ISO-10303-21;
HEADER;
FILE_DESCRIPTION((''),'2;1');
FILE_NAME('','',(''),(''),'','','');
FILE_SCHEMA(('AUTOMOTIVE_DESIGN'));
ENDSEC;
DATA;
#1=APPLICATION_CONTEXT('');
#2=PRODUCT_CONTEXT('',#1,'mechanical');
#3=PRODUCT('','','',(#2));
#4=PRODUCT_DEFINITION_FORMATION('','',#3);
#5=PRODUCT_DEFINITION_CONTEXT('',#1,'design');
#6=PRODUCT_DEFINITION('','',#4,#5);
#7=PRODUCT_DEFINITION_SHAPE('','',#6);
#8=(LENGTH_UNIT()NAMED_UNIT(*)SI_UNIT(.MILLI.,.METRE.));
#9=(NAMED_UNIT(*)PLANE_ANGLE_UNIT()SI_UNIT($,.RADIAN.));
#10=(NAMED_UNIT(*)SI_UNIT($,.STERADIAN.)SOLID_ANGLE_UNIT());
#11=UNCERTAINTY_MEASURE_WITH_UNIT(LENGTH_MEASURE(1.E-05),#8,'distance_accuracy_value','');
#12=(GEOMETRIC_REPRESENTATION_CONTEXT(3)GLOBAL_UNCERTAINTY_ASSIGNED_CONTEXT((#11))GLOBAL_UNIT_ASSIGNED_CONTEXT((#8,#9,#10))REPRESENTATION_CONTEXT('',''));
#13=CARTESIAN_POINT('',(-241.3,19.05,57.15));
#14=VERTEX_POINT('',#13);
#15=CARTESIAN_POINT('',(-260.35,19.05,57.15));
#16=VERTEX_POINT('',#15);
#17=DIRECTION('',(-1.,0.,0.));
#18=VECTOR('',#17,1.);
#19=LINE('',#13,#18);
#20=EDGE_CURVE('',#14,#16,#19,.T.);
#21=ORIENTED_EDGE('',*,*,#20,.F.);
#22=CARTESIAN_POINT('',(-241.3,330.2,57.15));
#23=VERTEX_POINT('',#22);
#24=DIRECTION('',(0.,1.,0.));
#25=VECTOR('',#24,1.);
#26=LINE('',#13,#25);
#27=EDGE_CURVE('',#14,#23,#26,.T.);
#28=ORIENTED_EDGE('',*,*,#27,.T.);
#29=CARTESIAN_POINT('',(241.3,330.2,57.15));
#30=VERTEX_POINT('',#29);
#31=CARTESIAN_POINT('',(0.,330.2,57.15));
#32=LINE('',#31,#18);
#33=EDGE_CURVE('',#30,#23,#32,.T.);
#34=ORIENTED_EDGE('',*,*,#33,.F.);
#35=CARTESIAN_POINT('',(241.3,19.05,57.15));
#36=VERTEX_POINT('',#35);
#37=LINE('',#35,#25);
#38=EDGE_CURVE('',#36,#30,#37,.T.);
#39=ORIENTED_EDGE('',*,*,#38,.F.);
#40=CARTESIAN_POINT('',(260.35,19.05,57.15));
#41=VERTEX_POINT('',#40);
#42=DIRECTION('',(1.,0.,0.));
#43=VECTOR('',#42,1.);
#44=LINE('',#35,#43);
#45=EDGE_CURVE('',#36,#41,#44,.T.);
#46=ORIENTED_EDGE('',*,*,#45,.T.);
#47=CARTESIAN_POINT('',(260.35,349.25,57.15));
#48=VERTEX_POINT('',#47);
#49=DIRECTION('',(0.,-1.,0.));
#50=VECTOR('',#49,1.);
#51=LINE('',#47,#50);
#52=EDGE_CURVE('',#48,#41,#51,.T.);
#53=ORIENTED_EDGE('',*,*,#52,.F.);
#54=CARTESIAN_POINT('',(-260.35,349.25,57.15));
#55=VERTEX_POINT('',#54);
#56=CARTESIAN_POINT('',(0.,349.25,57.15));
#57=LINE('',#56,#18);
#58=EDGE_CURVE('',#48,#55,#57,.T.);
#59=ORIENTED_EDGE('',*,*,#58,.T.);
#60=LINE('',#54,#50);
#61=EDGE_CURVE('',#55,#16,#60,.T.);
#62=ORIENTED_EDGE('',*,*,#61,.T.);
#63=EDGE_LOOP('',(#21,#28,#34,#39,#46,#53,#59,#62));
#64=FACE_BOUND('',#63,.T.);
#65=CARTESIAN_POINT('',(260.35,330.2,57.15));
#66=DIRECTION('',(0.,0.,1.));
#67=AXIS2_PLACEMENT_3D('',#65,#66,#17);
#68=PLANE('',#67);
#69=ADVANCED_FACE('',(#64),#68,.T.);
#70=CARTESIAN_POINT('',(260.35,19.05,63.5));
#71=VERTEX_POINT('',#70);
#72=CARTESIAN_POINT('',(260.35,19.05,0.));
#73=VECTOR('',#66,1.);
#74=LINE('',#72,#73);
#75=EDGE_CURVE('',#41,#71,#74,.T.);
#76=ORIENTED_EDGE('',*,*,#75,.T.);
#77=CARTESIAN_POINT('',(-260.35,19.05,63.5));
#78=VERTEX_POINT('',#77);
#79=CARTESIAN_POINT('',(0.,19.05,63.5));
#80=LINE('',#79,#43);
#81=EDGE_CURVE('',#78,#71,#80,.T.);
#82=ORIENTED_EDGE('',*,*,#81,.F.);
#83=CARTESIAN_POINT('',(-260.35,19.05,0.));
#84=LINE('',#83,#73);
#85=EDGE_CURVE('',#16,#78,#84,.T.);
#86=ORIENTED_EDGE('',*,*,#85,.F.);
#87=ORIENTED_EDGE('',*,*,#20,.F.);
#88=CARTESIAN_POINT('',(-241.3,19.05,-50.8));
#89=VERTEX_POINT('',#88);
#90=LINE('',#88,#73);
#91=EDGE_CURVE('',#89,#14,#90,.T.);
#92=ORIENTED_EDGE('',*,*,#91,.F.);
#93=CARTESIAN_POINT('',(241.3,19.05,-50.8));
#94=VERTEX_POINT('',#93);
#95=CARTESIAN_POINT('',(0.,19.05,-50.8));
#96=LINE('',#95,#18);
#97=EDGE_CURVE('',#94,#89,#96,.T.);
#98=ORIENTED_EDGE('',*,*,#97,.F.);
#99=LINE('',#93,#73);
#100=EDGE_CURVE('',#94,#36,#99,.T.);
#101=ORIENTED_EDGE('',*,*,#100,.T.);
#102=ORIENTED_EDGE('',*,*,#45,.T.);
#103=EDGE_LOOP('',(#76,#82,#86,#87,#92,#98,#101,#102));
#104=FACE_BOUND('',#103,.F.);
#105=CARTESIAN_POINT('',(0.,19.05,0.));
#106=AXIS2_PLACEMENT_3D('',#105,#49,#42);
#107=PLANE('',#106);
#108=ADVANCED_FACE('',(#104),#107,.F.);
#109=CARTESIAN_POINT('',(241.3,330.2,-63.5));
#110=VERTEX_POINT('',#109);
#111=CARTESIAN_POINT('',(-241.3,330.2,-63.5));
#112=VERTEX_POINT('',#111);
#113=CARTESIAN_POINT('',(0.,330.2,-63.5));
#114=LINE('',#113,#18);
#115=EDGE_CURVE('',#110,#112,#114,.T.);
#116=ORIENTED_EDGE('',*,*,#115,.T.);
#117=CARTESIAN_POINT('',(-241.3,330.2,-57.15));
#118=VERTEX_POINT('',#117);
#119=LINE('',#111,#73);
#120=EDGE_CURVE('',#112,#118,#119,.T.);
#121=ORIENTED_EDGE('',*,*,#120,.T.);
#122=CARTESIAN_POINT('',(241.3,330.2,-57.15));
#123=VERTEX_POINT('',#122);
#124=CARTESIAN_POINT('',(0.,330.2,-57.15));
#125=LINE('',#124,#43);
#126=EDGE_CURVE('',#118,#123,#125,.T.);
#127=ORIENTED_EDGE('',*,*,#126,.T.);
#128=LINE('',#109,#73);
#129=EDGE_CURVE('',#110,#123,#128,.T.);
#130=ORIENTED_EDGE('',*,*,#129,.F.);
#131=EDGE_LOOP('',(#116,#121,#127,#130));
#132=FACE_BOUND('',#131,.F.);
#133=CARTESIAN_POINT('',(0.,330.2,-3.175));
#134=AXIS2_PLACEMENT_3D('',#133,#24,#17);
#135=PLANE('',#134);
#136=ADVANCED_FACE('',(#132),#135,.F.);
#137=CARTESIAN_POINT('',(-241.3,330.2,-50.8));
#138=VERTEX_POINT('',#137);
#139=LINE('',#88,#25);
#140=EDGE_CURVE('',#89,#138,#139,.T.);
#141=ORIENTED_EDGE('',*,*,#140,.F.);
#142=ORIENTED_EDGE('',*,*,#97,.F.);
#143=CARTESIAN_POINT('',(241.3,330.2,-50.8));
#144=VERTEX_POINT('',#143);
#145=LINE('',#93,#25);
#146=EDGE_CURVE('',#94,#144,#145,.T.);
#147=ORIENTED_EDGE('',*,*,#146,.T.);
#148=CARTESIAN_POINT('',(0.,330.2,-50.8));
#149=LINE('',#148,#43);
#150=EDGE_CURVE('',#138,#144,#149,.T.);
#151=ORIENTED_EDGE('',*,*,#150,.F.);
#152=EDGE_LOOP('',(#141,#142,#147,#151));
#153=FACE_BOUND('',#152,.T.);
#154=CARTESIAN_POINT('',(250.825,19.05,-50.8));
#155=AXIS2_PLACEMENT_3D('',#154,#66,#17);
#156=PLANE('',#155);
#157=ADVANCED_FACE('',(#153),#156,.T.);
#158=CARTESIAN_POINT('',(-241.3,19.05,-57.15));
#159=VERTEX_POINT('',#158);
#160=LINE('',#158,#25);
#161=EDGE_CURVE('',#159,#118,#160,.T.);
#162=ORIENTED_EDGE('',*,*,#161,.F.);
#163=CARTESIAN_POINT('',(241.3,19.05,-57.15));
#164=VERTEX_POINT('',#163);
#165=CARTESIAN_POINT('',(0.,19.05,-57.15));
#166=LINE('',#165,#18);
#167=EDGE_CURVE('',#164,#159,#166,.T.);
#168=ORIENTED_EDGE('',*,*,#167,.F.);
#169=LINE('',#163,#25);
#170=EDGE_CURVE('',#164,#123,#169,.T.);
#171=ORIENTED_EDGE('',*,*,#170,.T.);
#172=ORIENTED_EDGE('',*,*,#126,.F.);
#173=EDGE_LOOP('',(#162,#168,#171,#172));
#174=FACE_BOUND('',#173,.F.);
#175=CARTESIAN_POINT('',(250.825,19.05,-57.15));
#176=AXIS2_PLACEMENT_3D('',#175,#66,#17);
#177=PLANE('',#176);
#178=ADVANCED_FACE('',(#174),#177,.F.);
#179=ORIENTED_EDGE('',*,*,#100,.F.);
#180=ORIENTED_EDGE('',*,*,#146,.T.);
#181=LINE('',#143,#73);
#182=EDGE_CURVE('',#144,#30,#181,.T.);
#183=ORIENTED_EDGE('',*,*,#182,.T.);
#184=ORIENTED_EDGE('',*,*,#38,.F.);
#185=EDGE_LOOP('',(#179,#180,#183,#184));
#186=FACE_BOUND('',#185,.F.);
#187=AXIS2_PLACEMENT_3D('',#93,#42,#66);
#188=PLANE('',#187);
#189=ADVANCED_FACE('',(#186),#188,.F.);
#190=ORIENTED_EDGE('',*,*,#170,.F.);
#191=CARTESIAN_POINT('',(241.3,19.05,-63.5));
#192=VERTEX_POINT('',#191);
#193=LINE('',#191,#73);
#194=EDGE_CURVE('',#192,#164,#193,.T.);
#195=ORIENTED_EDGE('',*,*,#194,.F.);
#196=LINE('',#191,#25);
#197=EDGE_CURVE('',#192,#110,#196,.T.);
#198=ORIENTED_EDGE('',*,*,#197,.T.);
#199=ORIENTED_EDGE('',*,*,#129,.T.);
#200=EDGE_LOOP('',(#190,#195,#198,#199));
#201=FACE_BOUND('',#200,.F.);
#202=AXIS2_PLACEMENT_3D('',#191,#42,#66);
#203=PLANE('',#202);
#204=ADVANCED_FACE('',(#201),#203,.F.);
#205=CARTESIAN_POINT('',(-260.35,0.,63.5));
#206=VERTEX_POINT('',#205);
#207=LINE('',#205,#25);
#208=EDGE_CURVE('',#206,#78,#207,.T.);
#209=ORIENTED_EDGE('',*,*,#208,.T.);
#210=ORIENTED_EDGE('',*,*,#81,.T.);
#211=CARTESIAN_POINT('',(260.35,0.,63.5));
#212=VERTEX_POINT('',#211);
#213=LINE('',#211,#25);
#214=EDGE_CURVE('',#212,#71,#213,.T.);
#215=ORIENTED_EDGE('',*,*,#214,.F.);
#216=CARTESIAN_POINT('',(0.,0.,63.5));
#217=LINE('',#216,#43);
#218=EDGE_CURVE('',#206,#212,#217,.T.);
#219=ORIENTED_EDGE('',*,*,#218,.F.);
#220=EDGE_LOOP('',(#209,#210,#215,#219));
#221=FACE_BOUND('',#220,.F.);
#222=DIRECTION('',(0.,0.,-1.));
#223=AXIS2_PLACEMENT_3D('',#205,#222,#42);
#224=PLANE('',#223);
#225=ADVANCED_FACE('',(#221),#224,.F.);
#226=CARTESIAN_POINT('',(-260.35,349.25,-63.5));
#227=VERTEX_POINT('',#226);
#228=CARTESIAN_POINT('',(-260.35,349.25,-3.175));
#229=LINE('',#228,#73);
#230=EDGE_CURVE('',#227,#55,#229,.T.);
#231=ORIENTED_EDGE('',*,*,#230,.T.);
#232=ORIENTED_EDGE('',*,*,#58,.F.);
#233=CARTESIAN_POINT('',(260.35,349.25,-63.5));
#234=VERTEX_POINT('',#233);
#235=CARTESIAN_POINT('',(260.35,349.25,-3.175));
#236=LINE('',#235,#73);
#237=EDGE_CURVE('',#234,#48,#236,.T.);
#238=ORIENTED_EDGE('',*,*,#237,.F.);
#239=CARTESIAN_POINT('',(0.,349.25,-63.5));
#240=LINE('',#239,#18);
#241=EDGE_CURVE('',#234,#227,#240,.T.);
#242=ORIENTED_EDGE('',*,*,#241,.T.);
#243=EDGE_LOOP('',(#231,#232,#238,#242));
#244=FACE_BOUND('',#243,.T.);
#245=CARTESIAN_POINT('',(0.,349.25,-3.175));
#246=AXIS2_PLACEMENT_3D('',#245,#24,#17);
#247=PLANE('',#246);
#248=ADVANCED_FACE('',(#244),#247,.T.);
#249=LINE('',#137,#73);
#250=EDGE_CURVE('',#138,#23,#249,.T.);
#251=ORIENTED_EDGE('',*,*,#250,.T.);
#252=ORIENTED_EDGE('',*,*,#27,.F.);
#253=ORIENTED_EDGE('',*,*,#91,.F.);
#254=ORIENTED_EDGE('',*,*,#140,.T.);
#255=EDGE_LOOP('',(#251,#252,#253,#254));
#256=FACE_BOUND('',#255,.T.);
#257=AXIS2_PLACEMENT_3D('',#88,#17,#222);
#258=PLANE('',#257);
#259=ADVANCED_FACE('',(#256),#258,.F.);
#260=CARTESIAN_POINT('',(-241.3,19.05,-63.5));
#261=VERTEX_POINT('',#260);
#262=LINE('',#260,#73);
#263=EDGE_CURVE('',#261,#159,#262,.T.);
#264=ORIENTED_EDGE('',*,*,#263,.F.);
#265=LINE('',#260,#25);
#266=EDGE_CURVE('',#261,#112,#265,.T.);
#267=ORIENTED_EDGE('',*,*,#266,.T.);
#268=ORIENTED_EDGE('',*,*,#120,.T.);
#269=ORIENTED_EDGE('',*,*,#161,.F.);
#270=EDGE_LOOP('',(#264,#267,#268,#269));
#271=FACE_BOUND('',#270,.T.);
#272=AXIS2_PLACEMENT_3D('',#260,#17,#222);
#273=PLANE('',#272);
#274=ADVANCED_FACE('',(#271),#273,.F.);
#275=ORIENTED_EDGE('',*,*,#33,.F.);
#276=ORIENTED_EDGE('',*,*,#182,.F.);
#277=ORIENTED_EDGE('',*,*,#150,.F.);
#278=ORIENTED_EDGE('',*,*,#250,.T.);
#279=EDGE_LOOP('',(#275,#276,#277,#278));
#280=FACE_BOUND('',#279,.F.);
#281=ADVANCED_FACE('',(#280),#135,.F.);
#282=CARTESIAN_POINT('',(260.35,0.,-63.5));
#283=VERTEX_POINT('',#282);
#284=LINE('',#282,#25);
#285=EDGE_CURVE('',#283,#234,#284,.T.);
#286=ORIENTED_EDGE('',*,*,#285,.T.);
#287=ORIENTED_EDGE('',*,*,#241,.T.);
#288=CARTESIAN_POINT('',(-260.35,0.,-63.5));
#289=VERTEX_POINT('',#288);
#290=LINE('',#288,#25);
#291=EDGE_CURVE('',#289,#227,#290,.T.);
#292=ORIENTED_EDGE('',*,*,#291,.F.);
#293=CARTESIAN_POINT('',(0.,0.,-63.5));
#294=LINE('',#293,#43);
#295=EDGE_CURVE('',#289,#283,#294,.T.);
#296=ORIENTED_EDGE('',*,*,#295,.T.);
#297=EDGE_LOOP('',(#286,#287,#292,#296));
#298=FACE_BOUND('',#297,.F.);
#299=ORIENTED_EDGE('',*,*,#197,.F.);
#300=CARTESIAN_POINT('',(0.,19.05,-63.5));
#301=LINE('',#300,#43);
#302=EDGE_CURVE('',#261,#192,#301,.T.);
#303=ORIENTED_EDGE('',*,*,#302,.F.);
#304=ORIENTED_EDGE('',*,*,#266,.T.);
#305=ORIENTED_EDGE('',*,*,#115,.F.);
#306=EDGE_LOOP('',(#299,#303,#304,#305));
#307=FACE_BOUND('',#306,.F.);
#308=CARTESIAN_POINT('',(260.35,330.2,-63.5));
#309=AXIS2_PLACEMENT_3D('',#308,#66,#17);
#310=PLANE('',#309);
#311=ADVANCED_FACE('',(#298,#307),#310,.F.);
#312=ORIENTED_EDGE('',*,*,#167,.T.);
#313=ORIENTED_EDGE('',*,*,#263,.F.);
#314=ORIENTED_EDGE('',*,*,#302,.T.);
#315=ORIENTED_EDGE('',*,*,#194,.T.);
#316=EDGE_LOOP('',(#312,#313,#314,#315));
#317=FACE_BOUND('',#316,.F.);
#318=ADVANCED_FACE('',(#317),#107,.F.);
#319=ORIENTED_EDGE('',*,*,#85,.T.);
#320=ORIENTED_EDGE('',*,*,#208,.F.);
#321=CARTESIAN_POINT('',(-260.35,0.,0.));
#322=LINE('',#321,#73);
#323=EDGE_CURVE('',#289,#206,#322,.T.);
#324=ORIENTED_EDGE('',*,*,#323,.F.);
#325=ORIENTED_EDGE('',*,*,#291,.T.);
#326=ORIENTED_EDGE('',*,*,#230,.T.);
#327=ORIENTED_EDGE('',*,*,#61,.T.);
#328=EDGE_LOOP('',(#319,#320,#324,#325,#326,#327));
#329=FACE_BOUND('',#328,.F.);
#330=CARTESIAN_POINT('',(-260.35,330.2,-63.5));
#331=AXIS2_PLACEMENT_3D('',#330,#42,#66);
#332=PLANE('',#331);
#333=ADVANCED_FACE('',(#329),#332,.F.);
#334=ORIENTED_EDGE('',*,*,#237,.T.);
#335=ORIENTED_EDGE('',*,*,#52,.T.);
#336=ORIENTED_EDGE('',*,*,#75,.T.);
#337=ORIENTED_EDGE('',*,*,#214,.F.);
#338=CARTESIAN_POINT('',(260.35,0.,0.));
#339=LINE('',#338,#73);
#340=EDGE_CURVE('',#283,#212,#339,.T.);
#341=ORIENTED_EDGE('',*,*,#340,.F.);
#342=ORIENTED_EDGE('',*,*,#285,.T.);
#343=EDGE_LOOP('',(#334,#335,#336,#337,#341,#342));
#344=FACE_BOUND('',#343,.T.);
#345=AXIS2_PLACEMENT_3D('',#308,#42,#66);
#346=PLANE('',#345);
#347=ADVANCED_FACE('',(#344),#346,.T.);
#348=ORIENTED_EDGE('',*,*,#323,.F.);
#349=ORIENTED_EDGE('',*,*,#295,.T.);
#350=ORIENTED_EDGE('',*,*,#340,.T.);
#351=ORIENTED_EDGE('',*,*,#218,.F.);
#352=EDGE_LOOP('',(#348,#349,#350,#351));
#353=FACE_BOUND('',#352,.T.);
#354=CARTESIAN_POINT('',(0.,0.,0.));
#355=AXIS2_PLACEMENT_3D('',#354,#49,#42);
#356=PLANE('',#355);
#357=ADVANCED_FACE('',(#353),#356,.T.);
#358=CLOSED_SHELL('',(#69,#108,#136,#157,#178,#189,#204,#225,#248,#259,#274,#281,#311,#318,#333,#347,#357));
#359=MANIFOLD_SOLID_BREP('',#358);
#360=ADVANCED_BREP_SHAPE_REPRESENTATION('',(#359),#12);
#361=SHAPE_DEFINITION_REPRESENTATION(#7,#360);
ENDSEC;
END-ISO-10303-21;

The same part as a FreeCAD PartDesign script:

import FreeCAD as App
import Part
import Sketcher

V = App.Vector
Q = App.Units.Quantity

doc = App.newDocument("Part")
body = doc.addObject("PartDesign::Body", "Body")

# Sketch on XZ plane
sketch1 = doc.addObject("Sketcher::SketchObject", "Sketch")
body.addObject(sketch1)
sketch1.AttachmentSupport = (doc.XZ_Plane, [""])
sketch1.MapMode = "FlatFace"
sketch1.addGeometry([
    Part.LineSegment(V(-260, 64, 0), V(-260, -64, 0)),
    Part.LineSegment(V(-260, -64, 0), V(260, -64, 0)),
    Part.LineSegment(V(260, -64, 0), V(260, 64, 0)),
    Part.LineSegment(V(260, 64, 0), V(-260, 64, 0)),
], False)
sketch1.addConstraint([
    Sketcher.Constraint("Coincident", 0, 2, 1, 1),
    Sketcher.Constraint("Coincident", 1, 2, 2, 1),
    Sketcher.Constraint("Coincident", 2, 2, 3, 1),
    Sketcher.Constraint("Coincident", 3, 2, 0, 1),
    Sketcher.Constraint("Vertical", 0),
    Sketcher.Constraint("Horizontal", 1),
    Sketcher.Constraint("Vertical", 2),
    Sketcher.Constraint("Horizontal", 3),
    Sketcher.Constraint("Symmetric", 0, 2, 2, 2, -1, 1),
    Sketcher.Constraint("DistanceY", 0, 2, 0, 1, Q("5 in")),
    Sketcher.Constraint("DistanceX", 1, 1, 1, 2, Q("20.5 in")),
])
pad1 = doc.addObject("PartDesign::Pad", "Pad")
body.addObject(pad1)
pad1.Profile = sketch1
pad1.Length = Q("0.75 in")
pad1.Reversed = True

# Sketch on XZ plane
sketch2 = doc.addObject("Sketcher::SketchObject", "Sketch001")
body.addObject(sketch2)
sketch2.AttachmentSupport = (doc.XZ_Plane, [""])
sketch2.MapMode = "FlatFace"
sketch2.AttachmentOffset = App.Placement(V(0, 0, -0.75 * 25.4), App.Rotation())
sketch2.addGeometry([
    Part.LineSegment(V(260, 57, 0), V(260, -64, 0)),  # 0
    Part.LineSegment(V(260, -64, 0), V(241, -64, 0)),  # 1
    Part.LineSegment(V(241, -64, 0), V(241, -57, 0)),  # 2
    Part.LineSegment(V(241, -57, 0), V(251, -57, 0)),  # 3
    Part.LineSegment(V(251, -57, 0), V(251, -51, 0)),  # 4
    Part.LineSegment(V(251, -51, 0), V(241, -51, 0)),  # 5
    Part.LineSegment(V(241, -51, 0), V(241, 57, 0)),  # 6
    Part.LineSegment(V(241, 57, 0), V(260, 57, 0)),  # 7
], False)
sketch2.addConstraint([
    Sketcher.Constraint("Coincident", 0, 2, 1, 1),
    Sketcher.Constraint("Coincident", 1, 2, 2, 1),
    Sketcher.Constraint("Coincident", 2, 2, 3, 1),
    Sketcher.Constraint("Coincident", 3, 2, 4, 1),
    Sketcher.Constraint("Coincident", 4, 2, 5, 1),
    Sketcher.Constraint("Coincident", 5, 2, 6, 1),
    Sketcher.Constraint("Coincident", 6, 2, 7, 1),
    Sketcher.Constraint("Coincident", 7, 2, 0, 1),
    Sketcher.Constraint("Vertical", 0),
    Sketcher.Constraint("Horizontal", 1),
    Sketcher.Constraint("Vertical", 2),
    Sketcher.Constraint("Horizontal", 3),
    Sketcher.Constraint("Vertical", 4),
    Sketcher.Constraint("Horizontal", 5),
    Sketcher.Constraint("Vertical", 6),
    Sketcher.Constraint("Horizontal", 7),
    Sketcher.Constraint("Symmetric", 2, 2, 6, 2, -1),
    Sketcher.Constraint("Equal", 2, 4),
    Sketcher.Constraint("DistanceY", 4, 2, -1, 1, Q("2 in")),
    Sketcher.Constraint("DistanceX", 1, 2, 1, 1, Q("0.75 in")),
    Sketcher.Constraint("DistanceY", 0, 2, 0, 1, Q("4.75 in")),
    Sketcher.Constraint("DistanceX", -1, 1, 1, 2, Q("9.5 in")),
    Sketcher.Constraint("DistanceX", 3, 1, 3, 2, Q("0.375 in")),
])
pad2 = doc.addObject("PartDesign::Pad", "Pad001")
body.addObject(pad2)
pad2.Profile = sketch2
pad2.Length = Q("12.25 in")
pad2.Reversed = True
body2 = doc.addObject("PartDesign::Body", "Body001")
doc.recompute()

body2.BaseFeature = body
doc.recompute()

mirroring = doc.addObject("Part::Mirroring", "Mirroring")
mirroring.Source = body
mirroring.Base = V(0, 0, 0)
mirroring.Normal = V(1, 0, 0)
body3 = doc.addObject("PartDesign::Body", "Body002")
body3.BaseFeature = mirroring
boolean = doc.addObject("PartDesign::Boolean", "Boolean")
body2.addObject(boolean)
boolean.Type = "Fuse"
boolean.addObjects([body3])
doc.recompute()

# Sketch on XZ plane
sketch3 = doc.addObject("Sketcher::SketchObject", "Sketch002")
body2.addObject(sketch3)
sketch3.AttachmentSupport = (doc.getObject("XZ_Plane001"), [""])
sketch3.MapMode = "FlatFace"
sketch3.AttachmentOffset = App.Placement(V(0, 0, -13 * 25.4), App.Rotation())
sketch3.addGeometry([
    Part.LineSegment(V(260, 57, 0), V(260, -64, 0)),
    Part.LineSegment(V(260, -64, 0), V(-260, -64, 0)),
    Part.LineSegment(V(-260, -64, 0), V(-260, 57, 0)),
    Part.LineSegment(V(-260, 57, 0), V(260, 57, 0)),
], False)
sketch3.addConstraint([
    Sketcher.Constraint("Coincident", 0, 2, 1, 1),
    Sketcher.Constraint("Coincident", 1, 2, 2, 1),
    Sketcher.Constraint("Coincident", 2, 2, 3, 1),
    Sketcher.Constraint("Coincident", 3, 2, 0, 1),
    Sketcher.Constraint("Vertical", 0),
    Sketcher.Constraint("Horizontal", 1),
    Sketcher.Constraint("Vertical", 2),
    Sketcher.Constraint("Horizontal", 3),
    Sketcher.Constraint("DistanceX", 1, 2, 1, 1, Q("20.5 in")),
    Sketcher.Constraint("DistanceY", 0, 2, 0, 1, Q("4.75 in")),
    Sketcher.Constraint("DistanceY", 0, 2, -1, 1, Q("2.5 in")),
    Sketcher.Constraint("DistanceX", -1, 1, 0, 2, Q("10.25 in")),
])
pad3 = doc.addObject("PartDesign::Pad", "Pad002")
body2.addObject(pad3)
pad3.Profile = sketch3
pad3.Length = Q("0.75 in")
pad3.Reversed = True

# Sketch on XZ plane
sketch4 = doc.addObject("Sketcher::SketchObject", "Sketch003")
body2.addObject(sketch4)
sketch4.AttachmentSupport = (doc.getObject("XZ_Plane001"), [""])
sketch4.MapMode = "FlatFace"
sketch4.AttachmentOffset = App.Placement(V(0, 0, -13 * 25.4), App.Rotation())
sketch4.addGeometry([
    Part.LineSegment(V(-251, -51, 0), V(-251, -57, 0)),
    Part.LineSegment(V(-251, -57, 0), V(251, -57, 0)),
    Part.LineSegment(V(251, -57, 0), V(251, -51, 0)),
    Part.LineSegment(V(251, -51, 0), V(-251, -51, 0)),
], False)
sketch4.addConstraint([
    Sketcher.Constraint("Coincident", 0, 2, 1, 1),
    Sketcher.Constraint("Coincident", 1, 2, 2, 1),
    Sketcher.Constraint("Coincident", 2, 2, 3, 1),
    Sketcher.Constraint("Coincident", 3, 2, 0, 1),
    Sketcher.Constraint("Vertical", 0),
    Sketcher.Constraint("Horizontal", 1),
    Sketcher.Constraint("Vertical", 2),
    Sketcher.Constraint("Horizontal", 3),
    Sketcher.Constraint("DistanceY", 2, 2, -1, 1, Q("2 in")),
    Sketcher.Constraint("DistanceX", 1, 1, 1, 2, Q("19.75 in")),
    Sketcher.Constraint("DistanceY", 0, 2, 0, 1, Q("0.25 in")),
    Sketcher.Constraint("DistanceX", 0, 2, -1, 1, Q("9.875 in")),
])
pocket1 = doc.addObject("PartDesign::Pocket", "Pocket")
body2.addObject(pocket1)
pocket1.Profile = sketch4
pocket1.Length = Q("0.25 in")

# Sketch on XZ plane
sketch5 = doc.addObject("Sketcher::SketchObject", "Sketch004")
body2.addObject(sketch5)
sketch5.AttachmentSupport = (doc.getObject("XZ_Plane001"), [""])
sketch5.MapMode = "FlatFace"
sketch5.AttachmentOffset = App.Placement(V(0, 0, -0.75 * 25.4), App.Rotation())
sketch5.addGeometry([
    Part.LineSegment(V(251, -51, 0), V(251, -57, 0)),
    Part.LineSegment(V(251, -57, 0), V(-251, -57, 0)),
    Part.LineSegment(V(-251, -57, 0), V(-251, -51, 0)),
    Part.LineSegment(V(-251, -51, 0), V(251, -51, 0)),
], False)
sketch5.addConstraint([
    Sketcher.Constraint("Coincident", 0, 2, 1, 1),
    Sketcher.Constraint("Coincident", 1, 2, 2, 1),
    Sketcher.Constraint("Coincident", 2, 2, 3, 1),
    Sketcher.Constraint("Coincident", 3, 2, 0, 1),
    Sketcher.Constraint("Vertical", 0),
    Sketcher.Constraint("Horizontal", 1),
    Sketcher.Constraint("Vertical", 2),
    Sketcher.Constraint("Horizontal", 3),
    Sketcher.Constraint("DistanceY", 2, 2, -1, 1, Q("2 in")),
    Sketcher.Constraint("DistanceX", 1, 2, 1, 1, Q("19.75 in")),
    Sketcher.Constraint("DistanceY", 0, 2, 0, 1, Q("0.25 in")),
    Sketcher.Constraint("DistanceX", -1, 1, 0, 2, Q("9.875 in")),
])
pad4 = doc.addObject("PartDesign::Pad", "Pad003")
body2.addObject(pad4)
pad4.Profile = sketch5
pad4.Type = "UpToLast"
pad4.Reversed = True
mirroring.Visibility = False

doc.recompute()
